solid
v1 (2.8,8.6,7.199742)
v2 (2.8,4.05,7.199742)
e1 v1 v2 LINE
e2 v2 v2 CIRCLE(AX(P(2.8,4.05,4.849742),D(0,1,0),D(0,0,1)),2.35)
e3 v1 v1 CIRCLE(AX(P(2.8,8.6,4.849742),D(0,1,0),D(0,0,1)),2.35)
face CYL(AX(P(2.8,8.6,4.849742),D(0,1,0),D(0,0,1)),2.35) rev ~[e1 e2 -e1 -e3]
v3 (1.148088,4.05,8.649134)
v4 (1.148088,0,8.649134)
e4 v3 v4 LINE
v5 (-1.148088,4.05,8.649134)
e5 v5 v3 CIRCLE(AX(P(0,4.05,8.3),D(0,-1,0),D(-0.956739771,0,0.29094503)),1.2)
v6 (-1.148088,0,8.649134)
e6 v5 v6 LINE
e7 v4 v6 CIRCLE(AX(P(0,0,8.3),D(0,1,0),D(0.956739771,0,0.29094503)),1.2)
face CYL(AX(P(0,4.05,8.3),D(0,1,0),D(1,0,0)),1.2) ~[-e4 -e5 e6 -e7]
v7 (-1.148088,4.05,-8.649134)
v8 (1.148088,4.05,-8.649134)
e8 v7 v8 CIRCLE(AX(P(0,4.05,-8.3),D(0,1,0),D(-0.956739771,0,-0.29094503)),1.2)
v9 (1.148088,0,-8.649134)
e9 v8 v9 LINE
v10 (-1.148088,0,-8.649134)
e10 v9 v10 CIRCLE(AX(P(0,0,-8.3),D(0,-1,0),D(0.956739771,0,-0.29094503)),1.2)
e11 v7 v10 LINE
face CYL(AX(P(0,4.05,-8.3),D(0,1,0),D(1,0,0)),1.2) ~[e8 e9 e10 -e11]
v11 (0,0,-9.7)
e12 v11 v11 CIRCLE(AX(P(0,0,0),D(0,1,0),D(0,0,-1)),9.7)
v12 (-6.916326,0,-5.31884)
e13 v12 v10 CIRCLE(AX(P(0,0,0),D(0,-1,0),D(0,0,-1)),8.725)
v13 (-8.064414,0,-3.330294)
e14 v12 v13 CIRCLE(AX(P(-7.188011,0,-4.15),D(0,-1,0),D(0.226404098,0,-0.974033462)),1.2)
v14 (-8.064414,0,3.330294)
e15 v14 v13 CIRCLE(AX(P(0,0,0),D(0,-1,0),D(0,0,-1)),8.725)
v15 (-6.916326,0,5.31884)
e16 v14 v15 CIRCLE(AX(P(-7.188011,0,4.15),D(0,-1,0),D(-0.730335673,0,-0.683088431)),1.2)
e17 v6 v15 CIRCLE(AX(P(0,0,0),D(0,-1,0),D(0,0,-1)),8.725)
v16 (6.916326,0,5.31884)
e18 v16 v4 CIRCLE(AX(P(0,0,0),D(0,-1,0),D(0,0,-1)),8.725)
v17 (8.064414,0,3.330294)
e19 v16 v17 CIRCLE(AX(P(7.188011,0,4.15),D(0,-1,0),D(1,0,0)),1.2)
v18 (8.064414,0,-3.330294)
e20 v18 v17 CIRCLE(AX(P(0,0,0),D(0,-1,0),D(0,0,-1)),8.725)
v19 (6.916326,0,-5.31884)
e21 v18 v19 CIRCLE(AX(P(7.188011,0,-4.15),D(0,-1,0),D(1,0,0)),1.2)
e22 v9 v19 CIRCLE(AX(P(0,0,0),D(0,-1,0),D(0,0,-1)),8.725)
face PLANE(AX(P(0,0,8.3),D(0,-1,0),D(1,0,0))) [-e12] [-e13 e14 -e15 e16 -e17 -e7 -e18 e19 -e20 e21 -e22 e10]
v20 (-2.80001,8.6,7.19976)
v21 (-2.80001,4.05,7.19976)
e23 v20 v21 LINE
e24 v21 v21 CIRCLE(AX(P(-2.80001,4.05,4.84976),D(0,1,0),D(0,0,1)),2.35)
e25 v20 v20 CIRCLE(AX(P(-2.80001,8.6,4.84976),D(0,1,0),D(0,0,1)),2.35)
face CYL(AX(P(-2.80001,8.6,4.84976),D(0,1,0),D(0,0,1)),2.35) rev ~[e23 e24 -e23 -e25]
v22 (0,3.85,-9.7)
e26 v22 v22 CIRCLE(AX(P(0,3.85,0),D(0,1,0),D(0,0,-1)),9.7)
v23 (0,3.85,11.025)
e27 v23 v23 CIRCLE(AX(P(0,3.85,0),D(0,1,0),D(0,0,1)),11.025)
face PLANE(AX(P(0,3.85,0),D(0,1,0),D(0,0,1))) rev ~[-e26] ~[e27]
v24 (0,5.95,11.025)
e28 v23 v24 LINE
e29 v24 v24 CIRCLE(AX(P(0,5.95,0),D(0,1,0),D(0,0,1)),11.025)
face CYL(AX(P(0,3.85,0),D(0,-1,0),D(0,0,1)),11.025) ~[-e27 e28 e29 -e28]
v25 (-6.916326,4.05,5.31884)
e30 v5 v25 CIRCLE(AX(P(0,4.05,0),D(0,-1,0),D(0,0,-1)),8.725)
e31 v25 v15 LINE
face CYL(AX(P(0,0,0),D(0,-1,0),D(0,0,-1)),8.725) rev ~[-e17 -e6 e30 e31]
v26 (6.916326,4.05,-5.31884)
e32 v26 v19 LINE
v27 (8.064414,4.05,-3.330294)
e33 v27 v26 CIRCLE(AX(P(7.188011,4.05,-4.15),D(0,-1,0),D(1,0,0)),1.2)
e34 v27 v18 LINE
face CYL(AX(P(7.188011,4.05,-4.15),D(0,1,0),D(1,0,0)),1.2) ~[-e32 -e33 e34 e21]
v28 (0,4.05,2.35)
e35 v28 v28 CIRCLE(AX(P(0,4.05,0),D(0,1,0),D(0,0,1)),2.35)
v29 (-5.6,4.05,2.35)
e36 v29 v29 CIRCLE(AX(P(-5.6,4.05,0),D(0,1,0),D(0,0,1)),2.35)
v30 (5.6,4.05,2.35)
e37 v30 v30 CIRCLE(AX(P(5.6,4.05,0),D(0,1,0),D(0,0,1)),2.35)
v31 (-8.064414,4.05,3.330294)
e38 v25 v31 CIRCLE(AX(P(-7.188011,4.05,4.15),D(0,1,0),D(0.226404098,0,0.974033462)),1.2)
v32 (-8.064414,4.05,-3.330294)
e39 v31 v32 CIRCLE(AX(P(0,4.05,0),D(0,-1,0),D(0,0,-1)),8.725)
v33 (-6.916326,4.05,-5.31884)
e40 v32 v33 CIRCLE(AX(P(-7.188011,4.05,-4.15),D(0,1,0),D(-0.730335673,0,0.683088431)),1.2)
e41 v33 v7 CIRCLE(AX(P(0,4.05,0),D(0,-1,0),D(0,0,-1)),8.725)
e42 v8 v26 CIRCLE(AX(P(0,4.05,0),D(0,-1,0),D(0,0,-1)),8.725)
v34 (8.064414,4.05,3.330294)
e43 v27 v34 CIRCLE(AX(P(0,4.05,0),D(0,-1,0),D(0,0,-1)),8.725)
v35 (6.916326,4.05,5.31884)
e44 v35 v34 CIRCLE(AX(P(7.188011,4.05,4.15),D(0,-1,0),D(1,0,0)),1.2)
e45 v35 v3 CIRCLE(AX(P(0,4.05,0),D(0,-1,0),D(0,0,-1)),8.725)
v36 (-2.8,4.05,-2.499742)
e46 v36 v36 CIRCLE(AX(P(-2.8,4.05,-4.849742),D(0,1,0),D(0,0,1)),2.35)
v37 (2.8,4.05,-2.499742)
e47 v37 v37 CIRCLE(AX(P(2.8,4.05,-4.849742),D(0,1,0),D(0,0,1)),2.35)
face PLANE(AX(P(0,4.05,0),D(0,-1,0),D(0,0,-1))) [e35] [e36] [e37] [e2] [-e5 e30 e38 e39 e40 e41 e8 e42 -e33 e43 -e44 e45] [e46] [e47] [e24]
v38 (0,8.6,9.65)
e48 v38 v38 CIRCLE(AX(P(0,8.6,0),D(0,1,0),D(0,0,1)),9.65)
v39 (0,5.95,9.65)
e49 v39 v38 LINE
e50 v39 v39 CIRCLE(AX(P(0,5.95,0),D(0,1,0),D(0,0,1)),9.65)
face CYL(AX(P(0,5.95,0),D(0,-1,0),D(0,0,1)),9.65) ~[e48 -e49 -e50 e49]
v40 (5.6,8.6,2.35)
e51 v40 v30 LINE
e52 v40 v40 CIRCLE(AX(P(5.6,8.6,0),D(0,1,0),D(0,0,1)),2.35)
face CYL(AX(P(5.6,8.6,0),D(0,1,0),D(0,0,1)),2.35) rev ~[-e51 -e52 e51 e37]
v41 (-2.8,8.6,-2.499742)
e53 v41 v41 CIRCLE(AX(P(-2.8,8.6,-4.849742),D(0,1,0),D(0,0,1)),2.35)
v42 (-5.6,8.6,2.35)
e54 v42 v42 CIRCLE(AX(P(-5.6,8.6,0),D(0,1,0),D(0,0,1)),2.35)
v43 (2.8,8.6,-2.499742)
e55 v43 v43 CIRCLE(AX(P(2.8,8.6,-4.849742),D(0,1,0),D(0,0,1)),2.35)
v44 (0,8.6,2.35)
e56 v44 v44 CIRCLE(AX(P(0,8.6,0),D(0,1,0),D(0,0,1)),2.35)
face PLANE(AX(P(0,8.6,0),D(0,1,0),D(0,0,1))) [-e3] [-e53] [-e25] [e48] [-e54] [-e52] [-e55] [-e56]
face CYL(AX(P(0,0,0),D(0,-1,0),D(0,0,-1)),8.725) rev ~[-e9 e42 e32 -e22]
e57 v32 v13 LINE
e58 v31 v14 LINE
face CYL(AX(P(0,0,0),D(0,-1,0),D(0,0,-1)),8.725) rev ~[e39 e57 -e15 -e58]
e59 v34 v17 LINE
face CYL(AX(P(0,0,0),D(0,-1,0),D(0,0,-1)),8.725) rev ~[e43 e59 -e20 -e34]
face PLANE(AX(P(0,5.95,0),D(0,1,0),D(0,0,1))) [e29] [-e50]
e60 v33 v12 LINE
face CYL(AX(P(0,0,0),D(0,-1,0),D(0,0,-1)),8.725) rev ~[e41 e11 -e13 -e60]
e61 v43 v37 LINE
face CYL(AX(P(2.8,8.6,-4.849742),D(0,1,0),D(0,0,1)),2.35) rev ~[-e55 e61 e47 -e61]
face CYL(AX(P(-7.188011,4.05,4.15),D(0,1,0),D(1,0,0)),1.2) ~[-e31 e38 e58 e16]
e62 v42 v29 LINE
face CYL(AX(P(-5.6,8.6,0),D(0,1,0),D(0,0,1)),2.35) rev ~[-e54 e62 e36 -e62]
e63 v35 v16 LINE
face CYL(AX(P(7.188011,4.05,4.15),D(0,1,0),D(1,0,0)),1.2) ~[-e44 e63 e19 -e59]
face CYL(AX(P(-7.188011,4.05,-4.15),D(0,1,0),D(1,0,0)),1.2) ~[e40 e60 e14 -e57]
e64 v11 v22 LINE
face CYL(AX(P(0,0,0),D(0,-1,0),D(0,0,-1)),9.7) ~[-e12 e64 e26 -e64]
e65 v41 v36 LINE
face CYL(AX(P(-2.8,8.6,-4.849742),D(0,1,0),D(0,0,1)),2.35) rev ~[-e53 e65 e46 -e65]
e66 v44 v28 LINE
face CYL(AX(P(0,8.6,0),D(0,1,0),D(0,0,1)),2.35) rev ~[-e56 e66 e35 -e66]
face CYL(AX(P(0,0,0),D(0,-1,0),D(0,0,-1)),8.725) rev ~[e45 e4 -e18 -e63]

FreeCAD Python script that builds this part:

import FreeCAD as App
import Part
import Sketcher
Q = App.Units.Quantity

doc = App.newDocument("Part")
body = doc.addObject("PartDesign::Body", "Body")

sketch1 = doc.addObject("Sketcher::SketchObject", "Sketch")
body.addObject(sketch1)
sketch1.AttachmentSupport = (doc.XZ_Plane, [""])
sketch1.MapMode = "FlatFace"
sketch1.addGeometry(Part.Circle(App.Vector(0, 0, 0), App.Vector(0, 0, 1), 9.7), False)
sketch1.addConstraint([
    Sketcher.Constraint("Coincident", 0, 3, -1, 1),
    Sketcher.Constraint("Diameter", 0, Q("19.4 mm")),
])
pad1 = doc.addObject("PartDesign::Pad", "Pad")
body.addObject(pad1)
pad1.Profile = sketch1
pad1.Length = 3.85
pad1.Reversed = True

sketch2 = doc.addObject("Sketcher::SketchObject", "Sketch001")
body.addObject(sketch2)
sketch2.AttachmentSupport = (doc.XZ_Plane, [""])
sketch2.MapMode = "FlatFace"
sketch2.AttachmentOffset = App.Placement(App.Vector(0, 0, -3.85), App.Rotation())
sketch2.addGeometry(Part.Circle(App.Vector(0, 0, 0), App.Vector(0, 0, 1), 11.025), False)
sketch2.addConstraint([
    Sketcher.Constraint("Coincident", 0, 3, -1, 1),
    Sketcher.Constraint("Diameter", 0, Q("22.05 mm")),
])
pad2 = doc.addObject("PartDesign::Pad", "Pad001")
body.addObject(pad2)
pad2.Profile = sketch2
pad2.Length = 2.1
pad2.Reversed = True

sketch3 = doc.addObject("Sketcher::SketchObject", "Sketch002")
body.addObject(sketch3)
sketch3.AttachmentSupport = (doc.XZ_Plane, [""])
sketch3.MapMode = "FlatFace"
sketch3.AttachmentOffset = App.Placement(App.Vector(0, 0, -5.95), App.Rotation())
sketch3.addGeometry(Part.Circle(App.Vector(0, 0, 0), App.Vector(0, 0, 1), 9.65), False)
sketch3.addConstraint([
    Sketcher.Constraint("Coincident", 0, 3, -1, 1),
    Sketcher.Constraint("Diameter", 0, Q("19.3 mm")),
])
pad3 = doc.addObject("PartDesign::Pad", "Pad002")
body.addObject(pad3)
pad3.Profile = sketch3
pad3.Length = 2.65
pad3.Reversed = True

sketch4 = doc.addObject("Sketcher::SketchObject", "Sketch003")
body.addObject(sketch4)
sketch4.AttachmentSupport = (doc.XZ_Plane, [""])
sketch4.MapMode = "FlatFace"
sketch4.addGeometry(Part.Circle(App.Vector(0, 0, 0), App.Vector(0, 0, 1), 8.725), False)
sketch4.addConstraint([
    Sketcher.Constraint("Coincident", 0, 3, -1, 1),
    Sketcher.Constraint("Diameter", 0, Q("17.45 mm")),
])
pocket1 = doc.addObject("PartDesign::Pocket", "Pocket")
body.addObject(pocket1)
pocket1.Profile = sketch4
pocket1.Length = 4.05

sketch5 = doc.addObject("Sketcher::SketchObject", "Sketch004")
body.addObject(sketch5)
sketch5.AttachmentSupport = (doc.XZ_Plane, [""])
sketch5.MapMode = "FlatFace"
sketch5.AttachmentOffset = App.Placement(App.Vector(0, 0, -8.6), App.Rotation())
sketch5.addGeometry([
    Part.Circle(App.Vector(-2.8, -4.849742, 0), App.Vector(0, 0, 1), 2.35),
    Part.Circle(App.Vector(5.6, 0, 0), App.Vector(0, 0, 1), 2.35),
    Part.Circle(App.Vector(0, 0, 0), App.Vector(0, 0, 1), 2.35),
    Part.Circle(App.Vector(2.8, -4.849742, 0), App.Vector(0, 0, 1), 2.35),
    Part.Circle(App.Vector(2.8, 4.849742, 0), App.Vector(0, 0, 1), 2.35),
    Part.Circle(App.Vector(-2.80001, 4.84976, 0), App.Vector(0, 0, 1), 2.35),
    Part.Circle(App.Vector(-5.6, 0, 0), App.Vector(0, 0, 1), 2.35),
], False)
sketch5.addConstraint([
    Sketcher.Constraint("Coincident", 2, 3, -1, 1),
    Sketcher.Constraint("Equal", 0, 1),
    Sketcher.Constraint("Equal", 1, 2),
    Sketcher.Constraint("Equal", 2, 3),
    Sketcher.Constraint("Equal", 3, 4),
    Sketcher.Constraint("Equal", 4, 5),
    Sketcher.Constraint("Equal", 5, 6),
    Sketcher.Constraint("Symmetric", 0, 3, 4, 3, -1, 1),
    Sketcher.Constraint("Symmetric", 1, 3, 6, 3, -1, 1),
    Sketcher.Constraint("Symmetric", 0, 3, 3, 3, -2),
    Sketcher.Constraint("PointOnObject", 1, 3, -1),
    Sketcher.Constraint("Diameter", 0, Q("4.7 mm")),
    Sketcher.Constraint("DistanceX", 0, 3, -1, 1, Q("2.8 mm")),
    Sketcher.Constraint("DistanceX", -1, 1, 1, 3, Q("5.6 mm")),
    Sketcher.Constraint("DistanceX", 5, 3, -1, 1, Q("2.80001 mm")),
    Sketcher.Constraint("DistanceY", -1, 1, 5, 3, Q("4.84976 mm")),
    Sketcher.Constraint("DistanceY", 0, 3, -1, 1, Q("4.849742 mm")),
])
pocket2 = doc.addObject("PartDesign::Pocket", "Pocket001")
body.addObject(pocket2)
pocket2.Profile = sketch5
pocket2.Length = 4.55
pocket2.Reversed = True

sketch6 = doc.addObject("Sketcher::SketchObject", "Sketch005")
body.addObject(sketch6)
sketch6.AttachmentSupport = (doc.XZ_Plane, [""])
sketch6.MapMode = "FlatFace"
sketch6.AttachmentOffset = App.Placement(App.Vector(0, 0, -4.05), App.Rotation())
sketch6.addGeometry([
    Part.Circle(App.Vector(0, 8.3, 0), App.Vector(0, 0, 1), 1.2),
    Part.Circle(App.Vector(-7.188011, 4.15, 0), App.Vector(0, 0, 1), 1.2),
    Part.Circle(App.Vector(-7.188011, -4.15, 0), App.Vector(0, 0, 1), 1.2),
    Part.Circle(App.Vector(0, -8.3, 0), App.Vector(0, 0, 1), 1.2),
    Part.Circle(App.Vector(7.188011, -4.15, 0), App.Vector(0, 0, 1), 1.2),
    Part.Circle(App.Vector(7.188011, 4.15, 0), App.Vector(0, 0, 1), 1.2),
], False)
sketch6.addConstraint([
    Sketcher.Constraint("Equal", 0, 1),
    Sketcher.Constraint("Equal", 1, 2),
    Sketcher.Constraint("Equal", 2, 3),
    Sketcher.Constraint("Equal", 3, 4),
    Sketcher.Constraint("Equal", 4, 5),
    Sketcher.Constraint("Symmetric", 0, 3, 3, 3, -1, 1),
    Sketcher.Constraint("Symmetric", 1, 3, 4, 3, -1, 1),
    Sketcher.Constraint("Symmetric", 2, 3, 5, 3, -1, 1),
    Sketcher.Constraint("Symmetric", 2, 3, 4, 3, -2),
    Sketcher.Constraint("PointOnObject", 0, 3, -2),
    Sketcher.Constraint("Diameter", 0, Q("2.4 mm")),
    Sketcher.Constraint("DistanceY", -1, 1, 0, 3, Q("8.3 mm")),
    Sketcher.Constraint("DistanceY", 2, 3, 1, 3, Q("8.3 mm")),
    Sketcher.Constraint("DistanceX", 1, 3, -1, 1, Q("7.188011 mm")),
])
pad4 = doc.addObject("PartDesign::Pad", "Pad003")
body.addObject(pad4)
pad4.Profile = sketch6
pad4.Length = 4.05

doc.recompute()
